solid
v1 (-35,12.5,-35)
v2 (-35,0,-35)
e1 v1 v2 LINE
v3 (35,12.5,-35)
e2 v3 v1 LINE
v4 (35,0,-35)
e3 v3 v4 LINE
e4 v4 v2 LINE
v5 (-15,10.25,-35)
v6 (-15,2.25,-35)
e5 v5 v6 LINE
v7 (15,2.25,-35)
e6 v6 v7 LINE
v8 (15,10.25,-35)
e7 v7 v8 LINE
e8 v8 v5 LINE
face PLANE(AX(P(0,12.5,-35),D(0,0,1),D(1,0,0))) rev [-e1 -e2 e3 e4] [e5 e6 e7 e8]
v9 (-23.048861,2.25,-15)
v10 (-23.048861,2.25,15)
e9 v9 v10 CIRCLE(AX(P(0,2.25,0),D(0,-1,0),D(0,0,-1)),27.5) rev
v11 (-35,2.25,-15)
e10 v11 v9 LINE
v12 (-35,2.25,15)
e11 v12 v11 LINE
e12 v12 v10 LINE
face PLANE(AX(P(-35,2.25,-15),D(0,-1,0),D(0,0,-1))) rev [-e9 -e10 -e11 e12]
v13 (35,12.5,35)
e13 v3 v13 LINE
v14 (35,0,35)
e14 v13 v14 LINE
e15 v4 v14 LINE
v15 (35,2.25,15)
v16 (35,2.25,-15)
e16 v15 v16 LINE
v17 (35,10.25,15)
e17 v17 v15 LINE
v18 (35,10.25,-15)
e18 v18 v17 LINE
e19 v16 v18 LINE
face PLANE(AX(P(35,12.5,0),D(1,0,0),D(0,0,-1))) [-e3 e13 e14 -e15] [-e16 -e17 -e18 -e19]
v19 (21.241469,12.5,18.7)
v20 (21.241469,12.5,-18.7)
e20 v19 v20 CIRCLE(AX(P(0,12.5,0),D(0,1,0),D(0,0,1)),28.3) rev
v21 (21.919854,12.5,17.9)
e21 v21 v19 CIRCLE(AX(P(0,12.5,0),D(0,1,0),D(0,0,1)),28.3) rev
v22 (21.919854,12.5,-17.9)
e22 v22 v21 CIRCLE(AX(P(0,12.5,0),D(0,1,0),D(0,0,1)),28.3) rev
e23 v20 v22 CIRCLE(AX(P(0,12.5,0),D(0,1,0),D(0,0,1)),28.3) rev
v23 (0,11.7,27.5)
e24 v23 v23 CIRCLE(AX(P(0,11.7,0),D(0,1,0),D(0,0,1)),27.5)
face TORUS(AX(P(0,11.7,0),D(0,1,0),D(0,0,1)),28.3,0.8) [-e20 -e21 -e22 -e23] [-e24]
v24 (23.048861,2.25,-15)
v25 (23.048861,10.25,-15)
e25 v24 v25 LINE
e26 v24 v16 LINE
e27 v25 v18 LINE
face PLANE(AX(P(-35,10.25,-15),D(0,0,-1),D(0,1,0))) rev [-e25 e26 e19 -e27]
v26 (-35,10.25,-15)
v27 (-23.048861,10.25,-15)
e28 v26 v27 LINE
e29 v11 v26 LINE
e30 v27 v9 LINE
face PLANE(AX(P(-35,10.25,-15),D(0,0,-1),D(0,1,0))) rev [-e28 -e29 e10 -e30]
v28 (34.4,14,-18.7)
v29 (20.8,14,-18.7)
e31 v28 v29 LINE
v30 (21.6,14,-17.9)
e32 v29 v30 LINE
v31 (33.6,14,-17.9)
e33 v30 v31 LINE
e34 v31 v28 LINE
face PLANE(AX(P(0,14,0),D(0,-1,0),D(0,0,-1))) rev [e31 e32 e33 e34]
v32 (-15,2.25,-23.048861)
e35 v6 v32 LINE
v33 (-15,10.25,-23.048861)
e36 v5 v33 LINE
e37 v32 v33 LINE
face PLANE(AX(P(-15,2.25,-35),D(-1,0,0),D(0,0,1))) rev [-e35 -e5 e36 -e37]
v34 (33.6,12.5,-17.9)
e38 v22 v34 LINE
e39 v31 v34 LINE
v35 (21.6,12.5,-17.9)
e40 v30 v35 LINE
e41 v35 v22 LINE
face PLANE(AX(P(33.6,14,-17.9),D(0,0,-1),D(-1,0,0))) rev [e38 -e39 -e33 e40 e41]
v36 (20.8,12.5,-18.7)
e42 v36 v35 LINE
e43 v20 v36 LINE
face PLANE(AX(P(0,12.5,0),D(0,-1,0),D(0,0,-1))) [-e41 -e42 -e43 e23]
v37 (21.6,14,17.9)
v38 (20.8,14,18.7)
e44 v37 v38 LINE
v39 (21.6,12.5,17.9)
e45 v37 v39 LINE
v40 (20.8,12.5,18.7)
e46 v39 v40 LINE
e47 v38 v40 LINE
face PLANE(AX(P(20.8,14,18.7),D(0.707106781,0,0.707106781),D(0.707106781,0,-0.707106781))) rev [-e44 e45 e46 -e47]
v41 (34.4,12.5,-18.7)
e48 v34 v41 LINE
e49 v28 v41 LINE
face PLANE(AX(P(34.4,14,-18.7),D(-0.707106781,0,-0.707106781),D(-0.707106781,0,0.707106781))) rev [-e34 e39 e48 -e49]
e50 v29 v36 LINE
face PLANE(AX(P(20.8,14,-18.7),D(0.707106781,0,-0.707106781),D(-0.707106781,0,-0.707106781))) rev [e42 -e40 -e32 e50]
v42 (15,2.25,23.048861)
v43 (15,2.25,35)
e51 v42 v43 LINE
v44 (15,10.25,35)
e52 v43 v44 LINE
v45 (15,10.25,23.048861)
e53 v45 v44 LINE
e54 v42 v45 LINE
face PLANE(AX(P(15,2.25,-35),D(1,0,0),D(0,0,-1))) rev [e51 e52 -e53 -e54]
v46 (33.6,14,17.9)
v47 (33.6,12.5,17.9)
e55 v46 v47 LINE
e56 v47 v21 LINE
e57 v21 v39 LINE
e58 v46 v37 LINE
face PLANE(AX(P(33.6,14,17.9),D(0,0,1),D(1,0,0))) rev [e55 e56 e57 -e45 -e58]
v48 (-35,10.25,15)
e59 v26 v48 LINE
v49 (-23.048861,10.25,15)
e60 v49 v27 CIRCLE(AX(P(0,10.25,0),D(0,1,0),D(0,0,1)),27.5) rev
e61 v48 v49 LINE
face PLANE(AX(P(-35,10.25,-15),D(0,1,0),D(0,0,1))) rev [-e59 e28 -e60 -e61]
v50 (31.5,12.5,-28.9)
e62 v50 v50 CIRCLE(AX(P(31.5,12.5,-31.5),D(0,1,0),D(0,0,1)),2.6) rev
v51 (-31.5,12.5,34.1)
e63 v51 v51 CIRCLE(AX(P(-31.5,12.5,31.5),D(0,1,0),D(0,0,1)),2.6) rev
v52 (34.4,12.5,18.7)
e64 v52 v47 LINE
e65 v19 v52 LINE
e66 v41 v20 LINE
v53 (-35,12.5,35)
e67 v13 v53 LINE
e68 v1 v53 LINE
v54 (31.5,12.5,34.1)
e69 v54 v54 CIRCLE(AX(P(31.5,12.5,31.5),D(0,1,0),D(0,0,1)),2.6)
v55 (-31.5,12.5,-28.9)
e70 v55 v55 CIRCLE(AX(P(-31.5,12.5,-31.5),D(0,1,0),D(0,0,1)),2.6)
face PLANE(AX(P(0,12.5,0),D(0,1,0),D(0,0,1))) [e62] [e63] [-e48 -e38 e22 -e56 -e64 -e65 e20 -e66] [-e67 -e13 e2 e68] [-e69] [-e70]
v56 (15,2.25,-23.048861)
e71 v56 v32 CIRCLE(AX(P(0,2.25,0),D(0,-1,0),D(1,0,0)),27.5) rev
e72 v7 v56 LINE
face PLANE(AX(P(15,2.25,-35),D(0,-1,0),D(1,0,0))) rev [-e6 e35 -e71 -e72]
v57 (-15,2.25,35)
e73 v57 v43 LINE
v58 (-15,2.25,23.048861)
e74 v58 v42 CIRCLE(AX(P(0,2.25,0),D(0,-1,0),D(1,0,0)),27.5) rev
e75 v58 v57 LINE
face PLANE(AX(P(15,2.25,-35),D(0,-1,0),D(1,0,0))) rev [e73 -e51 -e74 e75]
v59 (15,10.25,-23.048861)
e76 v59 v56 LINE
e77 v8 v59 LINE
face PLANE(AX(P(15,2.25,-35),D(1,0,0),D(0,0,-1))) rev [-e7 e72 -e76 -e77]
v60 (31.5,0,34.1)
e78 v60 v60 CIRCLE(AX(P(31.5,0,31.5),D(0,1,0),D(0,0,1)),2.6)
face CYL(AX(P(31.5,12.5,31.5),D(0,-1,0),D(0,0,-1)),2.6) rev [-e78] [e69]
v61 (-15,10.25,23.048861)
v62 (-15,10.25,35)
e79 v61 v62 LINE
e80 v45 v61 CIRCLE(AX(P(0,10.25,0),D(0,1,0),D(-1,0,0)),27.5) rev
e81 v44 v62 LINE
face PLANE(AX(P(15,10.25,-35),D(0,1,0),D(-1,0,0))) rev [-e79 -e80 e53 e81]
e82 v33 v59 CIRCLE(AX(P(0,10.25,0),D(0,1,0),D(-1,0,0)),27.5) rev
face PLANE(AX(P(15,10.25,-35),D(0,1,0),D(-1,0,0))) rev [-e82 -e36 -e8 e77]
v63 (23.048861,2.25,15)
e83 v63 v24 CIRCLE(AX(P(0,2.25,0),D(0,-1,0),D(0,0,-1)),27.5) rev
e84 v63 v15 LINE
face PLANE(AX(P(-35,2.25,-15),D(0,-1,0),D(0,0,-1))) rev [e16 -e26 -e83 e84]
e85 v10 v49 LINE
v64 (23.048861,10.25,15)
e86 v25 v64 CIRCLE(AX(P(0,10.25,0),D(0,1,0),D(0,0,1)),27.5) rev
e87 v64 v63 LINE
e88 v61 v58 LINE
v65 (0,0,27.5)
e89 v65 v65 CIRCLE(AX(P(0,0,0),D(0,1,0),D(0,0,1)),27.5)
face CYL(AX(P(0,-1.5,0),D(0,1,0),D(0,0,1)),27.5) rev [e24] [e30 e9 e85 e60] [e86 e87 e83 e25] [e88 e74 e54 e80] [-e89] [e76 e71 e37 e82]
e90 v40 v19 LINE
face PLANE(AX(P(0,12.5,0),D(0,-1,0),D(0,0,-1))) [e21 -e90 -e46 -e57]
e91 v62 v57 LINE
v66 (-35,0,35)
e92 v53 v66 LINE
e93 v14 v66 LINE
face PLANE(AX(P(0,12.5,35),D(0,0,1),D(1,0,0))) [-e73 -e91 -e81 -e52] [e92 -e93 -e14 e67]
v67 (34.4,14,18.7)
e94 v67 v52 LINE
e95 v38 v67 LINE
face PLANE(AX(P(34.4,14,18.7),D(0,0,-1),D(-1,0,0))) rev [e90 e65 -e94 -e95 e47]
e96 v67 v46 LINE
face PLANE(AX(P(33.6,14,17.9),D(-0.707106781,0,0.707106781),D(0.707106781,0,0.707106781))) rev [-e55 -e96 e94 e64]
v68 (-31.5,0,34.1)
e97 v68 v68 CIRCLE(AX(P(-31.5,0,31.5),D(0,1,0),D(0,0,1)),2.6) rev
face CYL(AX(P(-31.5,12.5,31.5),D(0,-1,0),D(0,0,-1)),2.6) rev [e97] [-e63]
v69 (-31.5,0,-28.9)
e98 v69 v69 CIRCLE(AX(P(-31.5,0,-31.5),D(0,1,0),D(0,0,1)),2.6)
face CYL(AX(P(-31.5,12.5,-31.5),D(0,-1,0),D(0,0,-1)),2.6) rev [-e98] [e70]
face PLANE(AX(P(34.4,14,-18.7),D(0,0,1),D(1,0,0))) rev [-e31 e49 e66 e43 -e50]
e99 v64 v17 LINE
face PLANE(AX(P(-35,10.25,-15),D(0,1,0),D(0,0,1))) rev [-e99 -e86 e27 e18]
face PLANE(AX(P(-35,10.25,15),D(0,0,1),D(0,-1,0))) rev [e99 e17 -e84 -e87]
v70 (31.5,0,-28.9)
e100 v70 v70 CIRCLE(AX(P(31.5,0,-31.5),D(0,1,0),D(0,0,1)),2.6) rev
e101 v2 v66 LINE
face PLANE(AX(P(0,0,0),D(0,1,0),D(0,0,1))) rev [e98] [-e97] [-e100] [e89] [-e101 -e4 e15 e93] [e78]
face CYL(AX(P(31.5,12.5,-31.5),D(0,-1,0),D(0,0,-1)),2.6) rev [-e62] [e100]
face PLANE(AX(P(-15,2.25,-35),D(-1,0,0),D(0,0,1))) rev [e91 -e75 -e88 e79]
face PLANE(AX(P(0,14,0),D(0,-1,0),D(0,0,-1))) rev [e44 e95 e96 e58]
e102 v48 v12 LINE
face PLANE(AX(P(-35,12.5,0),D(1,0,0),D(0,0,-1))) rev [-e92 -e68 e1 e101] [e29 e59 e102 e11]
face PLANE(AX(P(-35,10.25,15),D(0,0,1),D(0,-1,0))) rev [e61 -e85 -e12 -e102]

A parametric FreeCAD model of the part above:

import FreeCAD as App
import Part
import Sketcher

V = App.Vector
Q = App.Units.Quantity


def edges_at(feature, points):
    """Names of the edges that pass closest to the given points."""
    edges = feature.Shape.Edges
    near = lambda p: min(range(len(edges)), key=lambda i: edges[i].distToShape(Part.Vertex(*p))[0])
    return sorted({f"Edge{near(p) + 1}" for p in points})

doc = App.newDocument("Part")
body = doc.addObject("PartDesign::Body", "Body")

# Sketch on XZ plane
sketch1 = doc.addObject("Sketcher::SketchObject", "Sketch")
body.addObject(sketch1)
sketch1.AttachmentSupport = (doc.XZ_Plane, [""])
sketch1.MapMode = "FlatFace"
sketch1.addGeometry([
    Part.LineSegment(V(-35, -35, 0), V(-35, 35, 0)),  # 0
    Part.LineSegment(V(-35, 35, 0), V(35, 35, 0)),  # 1
    Part.LineSegment(V(35, 35, 0), V(35, -35, 0)),  # 2
    Part.LineSegment(V(35, -35, 0), V(-35, -35, 0)),  # 3
    Part.Circle(V(-31.5, 31.5, 0), V(0, 0, 1), 2.6),  # 4
    Part.Circle(V(31.5, 31.5, 0), V(0, 0, 1), 2.6),  # 5
    Part.Circle(V(-31.5, -31.5, 0), V(0, 0, 1), 2.6),  # 6
    Part.Circle(V(31.5, -31.5, 0), V(0, 0, 1), 2.6),  # 7
], False)
sketch1.addConstraint([
    Sketcher.Constraint("Coincident", 0, 2, 1, 1),
    Sketcher.Constraint("Coincident", 1, 2, 2, 1),
    Sketcher.Constraint("Coincident", 2, 2, 3, 1),
    Sketcher.Constraint("Coincident", 3, 2, 0, 1),
    Sketcher.Constraint("Vertical", 0),
    Sketcher.Constraint("Horizontal", 1),
    Sketcher.Constraint("Vertical", 2),
    Sketcher.Constraint("Horizontal", 3),
    Sketcher.Constraint("Equal", 4, 5),
    Sketcher.Constraint("Equal", 5, 6),
    Sketcher.Constraint("Equal", 6, 7),
    Sketcher.Constraint("Symmetric", 5, 3, 6, 3, -1, 1),
    Sketcher.Constraint("Symmetric", 4, 3, 7, 3, -1, 1),
    Sketcher.Constraint("Symmetric", 0, 2, 2, 2, -1, 1),
    Sketcher.Constraint("Symmetric", 4, 3, 5, 3, -2),
    Sketcher.Constraint("Equal", 3, 0),
    Sketcher.Constraint("Diameter", 4, Q("5.2 mm")),
    Sketcher.Constraint("DistanceX", 1, 1, 1, 2, Q("70 mm")),
    Sketcher.Constraint("DistanceX", 4, 3, 5, 3, Q("63 mm")),
    Sketcher.Constraint("DistanceY", 6, 3, 4, 3, Q("63 mm")),
])
pad1 = doc.addObject("PartDesign::Pad", "Pad")
body.addObject(pad1)
pad1.Profile = sketch1
pad1.Length = 12.5
pad1.Reversed = True

# Sketch on XZ plane
sketch2 = doc.addObject("Sketcher::SketchObject", "Sketch001")
body.addObject(sketch2)
sketch2.AttachmentSupport = (doc.XZ_Plane, [""])
sketch2.MapMode = "FlatFace"
sketch2.AttachmentOffset = App.Placement(V(0, 0, -12.5), App.Rotation())
sketch2.addGeometry(Part.Circle(V(0, 0, 0), V(0, 0, 1), 27.5), False)
sketch2.addConstraint([
    Sketcher.Constraint("Coincident", 0, 3, -1, 1),
    Sketcher.Constraint("Diameter", 0, Q("55 mm")),
])
pocket1 = doc.addObject("PartDesign::Pocket", "Pocket")
body.addObject(pocket1)
pocket1.Profile = sketch2
pocket1.Length = 14
pocket1.Reversed = True
doc.recompute()

fillet = doc.addObject("PartDesign::Fillet", "Fillet")
body.addObject(fillet)
fillet.Base = (pocket1, edges_at(pocket1, [(0, 12.5, -27.5)]))
fillet.Radius = 0.8

# Sketch on XZ plane
sketch3 = doc.addObject("Sketcher::SketchObject", "Sketch002")
body.addObject(sketch3)
sketch3.AttachmentSupport = (doc.XZ_Plane, [""])
sketch3.MapMode = "FlatFace"
sketch3.AttachmentOffset = App.Placement(V(0, 0, -12.5), App.Rotation())
sketch3.addGeometry([
    Part.LineSegment(V(21.6, -17.9, 0), V(33.6, -17.9, 0)),  # 0
    Part.LineSegment(V(33.6, -17.9, 0), V(34.4, -18.7, 0)),  # 1
    Part.LineSegment(V(34.4, -18.7, 0), V(20.8, -18.7, 0)),  # 2
    Part.LineSegment(V(20.8, -18.7, 0), V(21.6, -17.9, 0)),  # 3
    Part.LineSegment(V(33.6, 17.9, 0), V(21.6, 17.9, 0)),  # 4
    Part.LineSegment(V(21.6, 17.9, 0), V(20.8, 18.7, 0)),  # 5
    Part.LineSegment(V(20.8, 18.7, 0), V(34.4, 18.7, 0)),  # 6
    Part.LineSegment(V(34.4, 18.7, 0), V(33.6, 17.9, 0)),  # 7
], False)
sketch3.addConstraint([
    Sketcher.Constraint("Coincident", 0, 2, 1, 1),
    Sketcher.Constraint("Coincident", 1, 2, 2, 1),
    Sketcher.Constraint("Coincident", 2, 2, 3, 1),
    Sketcher.Constraint("Coincident", 3, 2, 0, 1),
    Sketcher.Constraint("Coincident", 4, 2, 5, 1),
    Sketcher.Constraint("Coincident", 5, 2, 6, 1),
    Sketcher.Constraint("Coincident", 6, 2, 7, 1),
    Sketcher.Constraint("Coincident", 7, 2, 4, 1),
    Sketcher.Constraint("Horizontal", 0),
    Sketcher.Constraint("Horizontal", 2),
    Sketcher.Constraint("Horizontal", 4),
    Sketcher.Constraint("Horizontal", 6),
    Sketcher.Constraint("Symmetric", 3, 2, 4, 2, -1),
    Sketcher.Constraint("Symmetric", 2, 2, 5, 2, -1),
    Sketcher.Constraint("Perpendicular", 1, 3),
    Sketcher.Constraint("Perpendicular", 3, 5),
    Sketcher.Constraint("Perpendicular", 5, 7),
    Sketcher.Constraint("Vertical", 1, 2, 6, 2),
    Sketcher.Constraint("DistanceX", 0, 1, 0, 2, Q("12 mm")),
    Sketcher.Constraint("DistanceX", 2, 2, 2, 1, Q("13.6 mm")),
    Sketcher.Constraint("DistanceX", -1, 1, 0, 2, Q("33.6 mm")),
    Sketcher.Constraint("DistanceY", 0, 2, -1, 1, Q("17.9 mm")),
])
pad2 = doc.addObject("PartDesign::Pad", "Pad001")
body.addObject(pad2)
pad2.Profile = sketch3
pad2.Length = 1.5
pad2.Reversed = True

# Sketch on XY plane
sketch4 = doc.addObject("Sketcher::SketchObject", "Sketch003")
body.addObject(sketch4)
sketch4.AttachmentSupport = (doc.XY_Plane, [""])
sketch4.MapMode = "FlatFace"
sketch4.AttachmentOffset = App.Placement(V(0, 0, 35), App.Rotation())
sketch4.addGeometry([
    Part.LineSegment(V(-15, 10.25, 0), V(-15, 2.25, 0)),
    Part.LineSegment(V(-15, 2.25, 0), V(15, 2.25, 0)),
    Part.LineSegment(V(15, 2.25, 0), V(15, 10.25, 0)),
    Part.LineSegment(V(15, 10.25, 0), V(-15, 10.25, 0)),
], False)
sketch4.addConstraint([
    Sketcher.Constraint("Coincident", 0, 2, 1, 1),
    Sketcher.Constraint("Coincident", 1, 2, 2, 1),
    Sketcher.Constraint("Coincident", 2, 2, 3, 1),
    Sketcher.Constraint("Coincident", 3, 2, 0, 1),
    Sketcher.Constraint("Vertical", 0),
    Sketcher.Constraint("Horizontal", 1),
    Sketcher.Constraint("Vertical", 2),
    Sketcher.Constraint("Horizontal", 3),
    Sketcher.Constraint("DistanceX", 1, 1, 1, 2, Q("30 mm")),
    Sketcher.Constraint("DistanceY", 0, 2, 0, 1, Q("8 mm")),
    Sketcher.Constraint("DistanceX", 0, 2, -1, 1, Q("15 mm")),
    Sketcher.Constraint("DistanceY", -1, 1, 0, 2, Q("2.25 mm")),
])
pocket2 = doc.addObject("PartDesign::Pocket", "Pocket001")
body.addObject(pocket2)
pocket2.Profile = sketch4
pocket2.Type = "ThroughAll"

# Sketch on YZ plane
sketch5 = doc.addObject("Sketcher::SketchObject", "Sketch004")
body.addObject(sketch5)
sketch5.AttachmentSupport = (doc.YZ_Plane, [""])
sketch5.MapMode = "FlatFace"
sketch5.AttachmentOffset = App.Placement(V(0, 0, 35), App.Rotation())
sketch5.addGeometry([
    Part.LineSegment(V(10.25, 15, 0), V(2.25, 15, 0)),
    Part.LineSegment(V(2.25, 15, 0), V(2.25, -15, 0)),
    Part.LineSegment(V(2.25, -15, 0), V(10.25, -15, 0)),
    Part.LineSegment(V(10.25, -15, 0), V(10.25, 15, 0)),
], False)
sketch5.addConstraint([
    Sketcher.Constraint("Coincident", 0, 2, 1, 1),
    Sketcher.Constraint("Coincident", 1, 2, 2, 1),
    Sketcher.Constraint("Coincident", 2, 2, 3, 1),
    Sketcher.Constraint("Coincident", 3, 2, 0, 1),
    Sketcher.Constraint("Horizontal", 0),
    Sketcher.Constraint("Vertical", 1),
    Sketcher.Constraint("Horizontal", 2),
    Sketcher.Constraint("Vertical", 3),
    Sketcher.Constraint("DistanceX", 0, 2, 0, 1, Q("8 mm")),
    Sketcher.Constraint("DistanceY", 1, 2, 1, 1, Q("30 mm")),
    Sketcher.Constraint("DistanceY", -1, 1, 0, 2, Q("15 mm")),
    Sketcher.Constraint("DistanceX", -1, 1, 0, 2, Q("2.25 mm")),
])
pocket3 = doc.addObject("PartDesign::Pocket", "Pocket002")
body.addObject(pocket3)
pocket3.Profile = sketch5
pocket3.Type = "ThroughAll"

doc.recompute()
